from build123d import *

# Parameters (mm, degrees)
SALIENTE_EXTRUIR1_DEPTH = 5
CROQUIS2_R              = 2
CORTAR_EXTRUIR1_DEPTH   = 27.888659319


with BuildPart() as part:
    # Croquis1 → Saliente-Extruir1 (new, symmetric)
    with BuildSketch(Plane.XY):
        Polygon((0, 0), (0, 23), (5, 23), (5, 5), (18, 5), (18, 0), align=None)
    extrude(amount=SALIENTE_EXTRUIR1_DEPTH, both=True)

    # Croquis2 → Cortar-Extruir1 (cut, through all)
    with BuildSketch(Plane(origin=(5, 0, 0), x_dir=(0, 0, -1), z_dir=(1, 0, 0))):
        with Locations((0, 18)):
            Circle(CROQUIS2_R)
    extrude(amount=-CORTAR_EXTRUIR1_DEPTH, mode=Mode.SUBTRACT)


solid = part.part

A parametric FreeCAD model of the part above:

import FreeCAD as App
import Part
import Sketcher
Q = App.Units.Quantity


def add_polygon(sketch, points):
    """Adds a closed chain of lines whose ends are joined by coincident constraints."""
    first, n = sketch.GeometryCount, len(points)
    for a, b in zip(points, points[1:] + points[:1]):
        sketch.addGeometry(Part.LineSegment(App.Vector(*a, 0), App.Vector(*b, 0)), False)
    for i in range(n):
        sketch.addConstraint(Sketcher.Constraint("Coincident", first + i, 2, first + (i + 1) % n, 1))

doc = App.newDocument("Part")
body = doc.addObject("PartDesign::Body", "Body")

# Sketch on XY plane
sketch1 = body.newObject("Sketcher::SketchObject", "Sketch")
sketch1.AttachmentSupport = (doc.getObject("XY_Plane"), [""])
sketch1.MapMode = "FlatFace"
add_polygon(sketch1, [(0, 23), (0, 0), (18, 0), (18, 5), (5, 5), (5, 23)])  # lines 0-5
sketch1.addConstraint(Sketcher.Constraint("Vertical", 0))
sketch1.addConstraint(Sketcher.Constraint("Horizontal", 1))
sketch1.addConstraint(Sketcher.Constraint("Vertical", 2))
sketch1.addConstraint(Sketcher.Constraint("Horizontal", 3))
sketch1.addConstraint(Sketcher.Constraint("Vertical", 4))
sketch1.addConstraint(Sketcher.Constraint("Horizontal", 5))
sketch1.addConstraint(Sketcher.Constraint("Coincident", 0, 2, -1, 1))
sketch1.addConstraint(Sketcher.Constraint("Equal", 5, 2))
sketch1.addConstraint(Sketcher.Constraint("Equal", 1, 4))
sketch1.addConstraint(Sketcher.Constraint("DistanceX", 1, 1, 1, 2, Q("18 mm")))
sketch1.addConstraint(Sketcher.Constraint("DistanceX", 3, 2, 3, 1, Q("13 mm")))
pad1 = body.newObject("PartDesign::Pad", "Pad")
pad1.Profile = sketch1
pad1.Length = 10
pad1.Midplane = True

# Sketch on YZ plane
sketch2 = body.newObject("Sketcher::SketchObject", "Sketch001")
sketch2.AttachmentSupport = (doc.getObject("YZ_Plane"), [""])
sketch2.MapMode = "FlatFace"
sketch2.AttachmentOffset = App.Placement(App.Vector(0, 0, 5), App.Rotation())
sketch2.addGeometry(Part.Circle(App.Vector(18, 0, 0), App.Vector(0, 0, 1), 2), False)
sketch2.addConstraint(Sketcher.Constraint("PointOnObject", 0, 3, -1))
sketch2.addConstraint(Sketcher.Constraint("Diameter", 0, Q("4 mm")))
sketch2.addConstraint(Sketcher.Constraint("DistanceX", -1, 1, 0, 3, Q("18 mm")))
pocket1 = body.newObject("PartDesign::Pocket", "Pocket")
pocket1.Profile = sketch2
pocket1.Type = "ThroughAll"

doc.recompute()
